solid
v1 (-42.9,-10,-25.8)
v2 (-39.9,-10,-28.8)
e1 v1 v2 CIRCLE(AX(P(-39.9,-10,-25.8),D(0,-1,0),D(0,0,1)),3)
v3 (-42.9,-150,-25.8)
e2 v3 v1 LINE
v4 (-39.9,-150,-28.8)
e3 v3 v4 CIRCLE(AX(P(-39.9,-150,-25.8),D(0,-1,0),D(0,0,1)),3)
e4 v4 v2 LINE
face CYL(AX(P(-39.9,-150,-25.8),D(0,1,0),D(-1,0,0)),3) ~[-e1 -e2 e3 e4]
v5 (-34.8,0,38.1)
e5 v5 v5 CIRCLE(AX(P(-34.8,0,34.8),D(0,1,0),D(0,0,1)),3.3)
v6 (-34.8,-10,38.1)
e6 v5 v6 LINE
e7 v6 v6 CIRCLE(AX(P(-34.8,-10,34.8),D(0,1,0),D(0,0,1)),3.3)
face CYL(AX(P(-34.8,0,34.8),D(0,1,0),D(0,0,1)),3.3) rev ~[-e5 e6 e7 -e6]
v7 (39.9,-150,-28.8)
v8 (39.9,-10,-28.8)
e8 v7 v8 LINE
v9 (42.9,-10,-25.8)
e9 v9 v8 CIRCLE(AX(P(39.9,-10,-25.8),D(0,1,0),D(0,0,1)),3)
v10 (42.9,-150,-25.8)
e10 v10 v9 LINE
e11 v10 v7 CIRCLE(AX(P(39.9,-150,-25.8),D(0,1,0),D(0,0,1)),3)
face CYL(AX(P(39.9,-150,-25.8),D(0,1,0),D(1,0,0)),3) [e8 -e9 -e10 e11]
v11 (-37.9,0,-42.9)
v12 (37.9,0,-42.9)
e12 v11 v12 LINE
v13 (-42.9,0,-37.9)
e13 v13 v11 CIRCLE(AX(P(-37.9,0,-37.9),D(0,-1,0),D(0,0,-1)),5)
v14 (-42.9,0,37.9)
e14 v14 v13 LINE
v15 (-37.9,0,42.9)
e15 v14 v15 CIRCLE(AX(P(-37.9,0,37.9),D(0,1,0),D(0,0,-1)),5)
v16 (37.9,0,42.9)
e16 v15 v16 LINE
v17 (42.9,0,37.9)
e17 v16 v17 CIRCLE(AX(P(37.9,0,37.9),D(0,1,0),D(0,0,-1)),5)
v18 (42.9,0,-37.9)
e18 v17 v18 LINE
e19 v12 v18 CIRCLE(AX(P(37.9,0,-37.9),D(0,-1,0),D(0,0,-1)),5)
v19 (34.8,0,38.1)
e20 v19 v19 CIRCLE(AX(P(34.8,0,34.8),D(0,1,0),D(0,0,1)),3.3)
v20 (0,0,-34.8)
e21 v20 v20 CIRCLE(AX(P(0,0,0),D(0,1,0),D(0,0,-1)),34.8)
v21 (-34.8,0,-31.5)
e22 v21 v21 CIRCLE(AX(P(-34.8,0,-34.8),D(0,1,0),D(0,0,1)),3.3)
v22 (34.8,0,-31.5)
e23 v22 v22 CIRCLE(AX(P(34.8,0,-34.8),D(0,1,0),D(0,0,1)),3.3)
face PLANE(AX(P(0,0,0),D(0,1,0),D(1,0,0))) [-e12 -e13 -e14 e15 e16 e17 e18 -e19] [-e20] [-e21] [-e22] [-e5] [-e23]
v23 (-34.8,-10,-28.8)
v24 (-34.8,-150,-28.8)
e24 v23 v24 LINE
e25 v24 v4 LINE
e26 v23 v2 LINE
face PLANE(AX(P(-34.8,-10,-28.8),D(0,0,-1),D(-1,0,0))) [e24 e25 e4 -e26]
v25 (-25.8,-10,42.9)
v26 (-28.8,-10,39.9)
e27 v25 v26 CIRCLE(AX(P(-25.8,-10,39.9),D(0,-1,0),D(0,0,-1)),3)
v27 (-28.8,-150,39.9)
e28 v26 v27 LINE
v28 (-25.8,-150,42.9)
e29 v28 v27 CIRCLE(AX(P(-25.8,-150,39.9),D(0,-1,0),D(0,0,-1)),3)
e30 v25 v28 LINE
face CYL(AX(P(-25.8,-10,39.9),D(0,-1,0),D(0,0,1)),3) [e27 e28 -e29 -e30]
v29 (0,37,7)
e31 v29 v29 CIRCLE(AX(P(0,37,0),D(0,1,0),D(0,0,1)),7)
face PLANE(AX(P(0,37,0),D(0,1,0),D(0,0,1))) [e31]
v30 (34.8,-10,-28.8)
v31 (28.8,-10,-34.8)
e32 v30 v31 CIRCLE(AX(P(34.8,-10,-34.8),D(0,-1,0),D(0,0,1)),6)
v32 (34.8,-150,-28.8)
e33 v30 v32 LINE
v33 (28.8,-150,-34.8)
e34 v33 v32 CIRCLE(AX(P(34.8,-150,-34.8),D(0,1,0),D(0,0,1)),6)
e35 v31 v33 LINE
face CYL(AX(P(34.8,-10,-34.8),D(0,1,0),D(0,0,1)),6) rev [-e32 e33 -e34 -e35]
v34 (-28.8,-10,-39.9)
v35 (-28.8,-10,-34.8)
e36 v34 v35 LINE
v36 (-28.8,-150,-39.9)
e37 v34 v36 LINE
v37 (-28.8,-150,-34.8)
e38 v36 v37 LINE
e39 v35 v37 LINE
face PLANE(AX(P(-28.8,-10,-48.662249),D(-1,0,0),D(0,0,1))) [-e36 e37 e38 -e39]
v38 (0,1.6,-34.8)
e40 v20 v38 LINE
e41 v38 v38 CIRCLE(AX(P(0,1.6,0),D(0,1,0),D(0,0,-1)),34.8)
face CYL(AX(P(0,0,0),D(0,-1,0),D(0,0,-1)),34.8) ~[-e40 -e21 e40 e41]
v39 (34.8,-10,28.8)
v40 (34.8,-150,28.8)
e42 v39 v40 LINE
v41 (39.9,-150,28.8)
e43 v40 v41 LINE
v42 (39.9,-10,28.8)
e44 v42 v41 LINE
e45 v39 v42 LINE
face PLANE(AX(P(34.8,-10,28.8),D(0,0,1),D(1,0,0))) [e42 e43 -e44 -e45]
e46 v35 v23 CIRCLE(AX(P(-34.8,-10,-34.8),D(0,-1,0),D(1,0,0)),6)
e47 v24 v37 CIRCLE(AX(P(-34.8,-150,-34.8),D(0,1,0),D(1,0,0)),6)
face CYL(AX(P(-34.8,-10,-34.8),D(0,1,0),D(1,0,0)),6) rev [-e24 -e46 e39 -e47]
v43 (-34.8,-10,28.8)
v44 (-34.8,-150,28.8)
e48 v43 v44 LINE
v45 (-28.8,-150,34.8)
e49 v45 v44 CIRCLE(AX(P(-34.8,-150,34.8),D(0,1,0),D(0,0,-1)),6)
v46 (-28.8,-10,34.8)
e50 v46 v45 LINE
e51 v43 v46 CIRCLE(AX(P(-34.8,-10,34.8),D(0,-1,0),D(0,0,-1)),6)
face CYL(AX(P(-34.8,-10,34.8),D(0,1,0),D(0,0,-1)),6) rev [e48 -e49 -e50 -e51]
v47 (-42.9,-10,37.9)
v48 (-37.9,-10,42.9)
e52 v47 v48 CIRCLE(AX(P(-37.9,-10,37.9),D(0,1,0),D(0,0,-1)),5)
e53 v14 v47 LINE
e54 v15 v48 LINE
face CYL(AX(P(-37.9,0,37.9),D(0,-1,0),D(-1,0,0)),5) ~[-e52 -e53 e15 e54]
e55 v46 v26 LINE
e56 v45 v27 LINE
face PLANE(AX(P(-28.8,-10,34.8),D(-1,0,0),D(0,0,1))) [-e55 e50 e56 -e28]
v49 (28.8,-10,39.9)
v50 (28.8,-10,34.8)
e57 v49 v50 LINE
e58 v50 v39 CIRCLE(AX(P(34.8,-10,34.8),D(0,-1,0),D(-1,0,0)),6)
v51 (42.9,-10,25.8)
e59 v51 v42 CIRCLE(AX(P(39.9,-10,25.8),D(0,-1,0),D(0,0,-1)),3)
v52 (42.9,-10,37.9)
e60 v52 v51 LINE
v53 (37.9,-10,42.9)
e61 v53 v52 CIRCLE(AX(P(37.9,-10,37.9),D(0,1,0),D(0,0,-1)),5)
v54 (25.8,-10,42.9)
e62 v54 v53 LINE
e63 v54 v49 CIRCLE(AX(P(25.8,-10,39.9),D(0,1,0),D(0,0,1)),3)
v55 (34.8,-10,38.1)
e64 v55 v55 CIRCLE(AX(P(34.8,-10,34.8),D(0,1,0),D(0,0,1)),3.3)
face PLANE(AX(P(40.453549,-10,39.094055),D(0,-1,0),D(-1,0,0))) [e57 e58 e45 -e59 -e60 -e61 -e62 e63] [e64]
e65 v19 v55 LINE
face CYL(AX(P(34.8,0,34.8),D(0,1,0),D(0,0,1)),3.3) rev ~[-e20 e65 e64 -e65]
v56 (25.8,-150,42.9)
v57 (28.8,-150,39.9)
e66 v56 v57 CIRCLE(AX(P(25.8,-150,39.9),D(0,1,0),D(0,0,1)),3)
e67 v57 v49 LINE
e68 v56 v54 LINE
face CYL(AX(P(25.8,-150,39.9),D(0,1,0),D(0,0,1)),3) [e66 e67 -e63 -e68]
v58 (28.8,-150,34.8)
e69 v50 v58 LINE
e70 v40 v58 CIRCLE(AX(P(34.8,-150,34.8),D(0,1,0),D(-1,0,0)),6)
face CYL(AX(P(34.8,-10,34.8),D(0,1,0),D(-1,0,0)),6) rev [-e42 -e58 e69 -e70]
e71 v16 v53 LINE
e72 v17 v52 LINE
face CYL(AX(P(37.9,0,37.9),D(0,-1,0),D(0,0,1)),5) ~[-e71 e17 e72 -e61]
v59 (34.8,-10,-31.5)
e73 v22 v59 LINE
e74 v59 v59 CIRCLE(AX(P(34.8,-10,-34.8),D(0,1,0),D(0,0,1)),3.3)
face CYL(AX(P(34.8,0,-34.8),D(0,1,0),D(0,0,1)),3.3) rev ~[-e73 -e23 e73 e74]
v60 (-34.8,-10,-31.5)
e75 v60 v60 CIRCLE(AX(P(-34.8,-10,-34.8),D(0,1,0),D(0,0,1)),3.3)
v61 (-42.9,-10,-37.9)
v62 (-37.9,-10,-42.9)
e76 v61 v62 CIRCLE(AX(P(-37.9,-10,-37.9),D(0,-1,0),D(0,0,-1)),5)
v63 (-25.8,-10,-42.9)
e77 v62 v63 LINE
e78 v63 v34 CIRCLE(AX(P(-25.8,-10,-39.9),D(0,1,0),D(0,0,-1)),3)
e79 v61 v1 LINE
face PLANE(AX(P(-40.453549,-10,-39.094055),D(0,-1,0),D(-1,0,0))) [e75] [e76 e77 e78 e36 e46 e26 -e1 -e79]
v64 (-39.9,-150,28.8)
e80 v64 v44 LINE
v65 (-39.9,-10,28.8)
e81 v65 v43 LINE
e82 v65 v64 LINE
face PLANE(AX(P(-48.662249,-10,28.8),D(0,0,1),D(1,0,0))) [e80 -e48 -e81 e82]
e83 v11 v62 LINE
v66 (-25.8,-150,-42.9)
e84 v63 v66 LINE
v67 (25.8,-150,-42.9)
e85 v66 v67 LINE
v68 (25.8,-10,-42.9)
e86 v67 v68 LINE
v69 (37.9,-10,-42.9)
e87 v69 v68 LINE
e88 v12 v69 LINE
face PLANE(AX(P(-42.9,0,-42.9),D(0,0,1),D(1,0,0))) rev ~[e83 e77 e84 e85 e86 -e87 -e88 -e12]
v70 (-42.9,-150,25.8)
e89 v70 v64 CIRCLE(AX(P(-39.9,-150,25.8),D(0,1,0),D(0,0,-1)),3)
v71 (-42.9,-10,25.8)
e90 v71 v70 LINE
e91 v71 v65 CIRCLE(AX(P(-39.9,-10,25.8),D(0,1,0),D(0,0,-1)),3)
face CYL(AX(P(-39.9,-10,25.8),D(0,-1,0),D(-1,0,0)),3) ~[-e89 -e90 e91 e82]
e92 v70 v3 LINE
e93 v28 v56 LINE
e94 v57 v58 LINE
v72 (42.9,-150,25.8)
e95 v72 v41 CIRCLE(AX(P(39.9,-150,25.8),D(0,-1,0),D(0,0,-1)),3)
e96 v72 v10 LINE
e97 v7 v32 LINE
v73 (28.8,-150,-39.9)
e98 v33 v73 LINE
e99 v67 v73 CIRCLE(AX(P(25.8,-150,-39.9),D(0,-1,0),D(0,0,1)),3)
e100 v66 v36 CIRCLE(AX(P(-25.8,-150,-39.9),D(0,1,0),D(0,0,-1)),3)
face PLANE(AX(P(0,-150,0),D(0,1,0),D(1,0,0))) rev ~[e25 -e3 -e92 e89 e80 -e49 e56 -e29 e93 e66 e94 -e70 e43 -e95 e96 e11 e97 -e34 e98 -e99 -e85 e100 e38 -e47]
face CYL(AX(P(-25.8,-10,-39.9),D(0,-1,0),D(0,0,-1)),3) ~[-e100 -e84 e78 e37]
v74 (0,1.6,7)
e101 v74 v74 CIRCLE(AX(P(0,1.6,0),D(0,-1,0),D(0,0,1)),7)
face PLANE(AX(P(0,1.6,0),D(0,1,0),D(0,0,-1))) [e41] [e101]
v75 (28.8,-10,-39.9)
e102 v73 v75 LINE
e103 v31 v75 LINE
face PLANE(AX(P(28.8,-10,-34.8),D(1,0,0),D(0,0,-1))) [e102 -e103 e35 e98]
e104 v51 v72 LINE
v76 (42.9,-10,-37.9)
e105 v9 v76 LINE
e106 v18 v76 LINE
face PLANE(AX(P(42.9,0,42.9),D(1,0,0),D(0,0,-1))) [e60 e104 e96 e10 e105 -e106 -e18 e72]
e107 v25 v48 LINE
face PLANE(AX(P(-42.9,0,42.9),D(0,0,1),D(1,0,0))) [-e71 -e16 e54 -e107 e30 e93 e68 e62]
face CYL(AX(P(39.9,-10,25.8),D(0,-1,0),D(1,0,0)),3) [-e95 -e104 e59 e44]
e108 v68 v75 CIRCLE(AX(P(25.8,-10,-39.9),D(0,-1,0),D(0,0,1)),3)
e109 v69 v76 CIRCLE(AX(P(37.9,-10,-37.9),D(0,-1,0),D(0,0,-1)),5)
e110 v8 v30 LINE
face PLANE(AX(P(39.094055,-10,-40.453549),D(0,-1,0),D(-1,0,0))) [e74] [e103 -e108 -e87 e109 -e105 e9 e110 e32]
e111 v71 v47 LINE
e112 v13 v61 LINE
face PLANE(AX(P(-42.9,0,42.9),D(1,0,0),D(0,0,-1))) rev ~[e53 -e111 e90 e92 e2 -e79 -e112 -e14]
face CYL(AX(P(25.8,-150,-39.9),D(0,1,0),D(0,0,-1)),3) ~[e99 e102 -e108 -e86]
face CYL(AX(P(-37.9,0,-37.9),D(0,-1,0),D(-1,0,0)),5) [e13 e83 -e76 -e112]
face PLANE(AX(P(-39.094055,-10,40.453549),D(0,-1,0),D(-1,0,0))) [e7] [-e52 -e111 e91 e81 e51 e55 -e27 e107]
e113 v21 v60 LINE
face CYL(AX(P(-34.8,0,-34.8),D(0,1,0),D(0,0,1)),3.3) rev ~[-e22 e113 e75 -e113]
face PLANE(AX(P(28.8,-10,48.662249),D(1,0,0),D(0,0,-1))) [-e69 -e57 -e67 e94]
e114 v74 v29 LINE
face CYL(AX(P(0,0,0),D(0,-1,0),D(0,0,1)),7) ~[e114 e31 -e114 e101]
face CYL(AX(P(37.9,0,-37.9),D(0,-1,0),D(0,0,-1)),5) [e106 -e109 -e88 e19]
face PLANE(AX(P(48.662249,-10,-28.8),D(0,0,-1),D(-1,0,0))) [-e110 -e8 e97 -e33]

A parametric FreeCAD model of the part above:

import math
import FreeCAD as App
import Part
import Sketcher

V = App.Vector
Q = App.Units.Quantity


def edges_at(feature, points):
    """Names of the edges that pass closest to the given points."""
    edges = feature.Shape.Edges
    near = lambda p: min(range(len(edges)), key=lambda i: edges[i].distToShape(Part.Vertex(*p))[0])
    return sorted({f"Edge{near(p) + 1}" for p in points})

doc = App.newDocument("Part")
body = doc.addObject("PartDesign::Body", "Body")

# Sketch on XZ plane
sketch1 = body.newObject("Sketcher::SketchObject", "Sketch")
sketch1.AttachmentSupport = (doc.getObject("XZ_Plane"), [""])
sketch1.MapMode = "FlatFace"
sketch1.addGeometry([
    Part.LineSegment(V(-42.9, -42.9, 0), V(-42.9, 42.9, 0)),  # 0
    Part.LineSegment(V(-42.9, 42.9, 0), V(42.9, 42.9, 0)),  # 1
    Part.LineSegment(V(42.9, 42.9, 0), V(42.9, -42.9, 0)),  # 2
    Part.LineSegment(V(42.9, -42.9, 0), V(-42.9, -42.9, 0)),  # 3
    Part.Circle(V(-34.8, 34.8, 0), V(0, 0, 1), 3.3),  # 4
    Part.Circle(V(34.8, 34.8, 0), V(0, 0, 1), 3.3),  # 5
    Part.Circle(V(-34.8, -34.8, 0), V(0, 0, 1), 3.3),  # 6
    Part.Circle(V(34.8, -34.8, 0), V(0, 0, 1), 3.3),  # 7
], False)
sketch1.addConstraint([
    Sketcher.Constraint("Coincident", 0, 2, 1, 1),
    Sketcher.Constraint("Coincident", 1, 2, 2, 1),
    Sketcher.Constraint("Coincident", 2, 2, 3, 1),
    Sketcher.Constraint("Coincident", 3, 2, 0, 1),
    Sketcher.Constraint("Vertical", 0),
    Sketcher.Constraint("Horizontal", 1),
    Sketcher.Constraint("Vertical", 2),
    Sketcher.Constraint("Horizontal", 3),
    Sketcher.Constraint("Equal", 4, 5),
    Sketcher.Constraint("Equal", 5, 6),
    Sketcher.Constraint("Equal", 6, 7),
    Sketcher.Constraint("Symmetric", 5, 3, 6, 3, -1, 1),
    Sketcher.Constraint("Symmetric", 4, 3, 7, 3, -1, 1),
    Sketcher.Constraint("Symmetric", 0, 2, 2, 2, -1, 1),
    Sketcher.Constraint("Symmetric", 4, 3, 5, 3, -2),
    Sketcher.Constraint("Equal", 3, 0),
    Sketcher.Constraint("Diameter", 4, Q("6.6 mm")),
    Sketcher.Constraint("DistanceX", 1, 1, 1, 2, Q("85.8 mm")),
    Sketcher.Constraint("DistanceX", 4, 3, -1, 1, Q("34.8 mm")),
    Sketcher.Constraint("DistanceY", -1, 1, 4, 3, Q("34.8 mm")),
])
pad1 = body.newObject("PartDesign::Pad", "Pad")
pad1.Profile = sketch1
pad1.Length = 150

# Sketch on XZ plane
sketch2 = body.newObject("Sketcher::SketchObject", "Sketch001")
sketch2.AttachmentSupport = (doc.getObject("XZ_Plane"), [""])
sketch2.MapMode = "FlatFace"
sketch2.addGeometry(Part.Circle(V(0, 0, 0), V(0, 0, 1), 34.8), False)
sketch2.addConstraint([
    Sketcher.Constraint("Coincident", 0, 3, -1, 1),
    Sketcher.Constraint("Diameter", 0, Q("69.6 mm")),
])
pad2 = body.newObject("PartDesign::Pad", "Pad001")
pad2.Profile = sketch2
pad2.Length = 1.6
pad2.Reversed = True

# Sketch on XZ plane
sketch3 = body.newObject("Sketcher::SketchObject", "Sketch002")
sketch3.AttachmentSupport = (doc.getObject("XZ_Plane"), [""])
sketch3.MapMode = "FlatFace"
sketch3.addGeometry(Part.Circle(V(0, 0, 0), V(0, 0, 1), 7), False)
sketch3.addConstraint([
    Sketcher.Constraint("Coincident", 0, 3, -1, 1),
    Sketcher.Constraint("Diameter", 0, Q("14 mm")),
])
pad3 = body.newObject("PartDesign::Pad", "Pad002")
pad3.Profile = sketch3
pad3.Length = 37
pad3.Reversed = True

# Sketch on XZ plane
sketch4 = body.newObject("Sketcher::SketchObject", "Sketch003")
sketch4.AttachmentSupport = (doc.getObject("XZ_Plane"), [""])
sketch4.MapMode = "FlatFace"
sketch4.AttachmentOffset = App.Placement(V(0, 0, 10), App.Rotation())
sketch4.addGeometry([
    Part.LineSegment(V(-51.29514, -28.8, 0), V(-34.8, -28.8, 0)),  # 0
    Part.ArcOfCircle(Part.Circle(V(-34.8, -34.8, 0), V(0, 0, 1), 6), math.radians(0), math.radians(90)),  # 1
    Part.LineSegment(V(-28.8, -34.8, 0), V(-28.8, -48.662249, 0)),  # 2
    Part.LineSegment(V(-28.8, -48.662249, 0), V(-51.29514, -48.662249, 0)),  # 3
    Part.LineSegment(V(-51.29514, -48.662249, 0), V(-51.29514, -28.8, 0)),  # 4
    Part.LineSegment(V(34.8, -28.8, 0), V(48.662249, -28.8, 0)),  # 5
    Part.LineSegment(V(48.662249, -28.8, 0), V(48.662249, -51.29514, 0)),  # 6
    Part.LineSegment(V(48.662249, -51.29514, 0), V(28.8, -51.29514, 0)),  # 7
    Part.LineSegment(V(28.8, -51.29514, 0), V(28.8, -34.8, 0)),  # 8
    Part.ArcOfCircle(Part.Circle(V(34.8, -34.8, 0), V(0, 0, 1), 6), math.radians(90), math.radians(180)),  # 9
    Part.LineSegment(V(28.8, 34.8, 0), V(28.8, 48.662249, 0)),  # 10
    Part.LineSegment(V(28.8, 48.662249, 0), V(51.29514, 48.662249, 0)),  # 11
    Part.LineSegment(V(51.29514, 48.662249, 0), V(51.29514, 28.8, 0)),  # 12
    Part.LineSegment(V(51.29514, 28.8, 0), V(34.8, 28.8, 0)),  # 13
    Part.ArcOfCircle(Part.Circle(V(34.8, 34.8, 0), V(0, 0, 1), 6), math.radians(180), math.radians(270)),  # 14
    Part.LineSegment(V(-34.8, 28.8, 0), V(-48.662249, 28.8, 0)),  # 15
    Part.LineSegment(V(-48.662249, 28.8, 0), V(-48.662249, 51.29514, 0)),  # 16
    Part.LineSegment(V(-48.662249, 51.29514, 0), V(-28.8, 51.29514, 0)),  # 17
    Part.LineSegment(V(-28.8, 51.29514, 0), V(-28.8, 34.8, 0)),  # 18
    Part.ArcOfCircle(Part.Circle(V(-34.8, 34.8, 0), V(0, 0, 1), 6), math.radians(-90), math.radians(0)),  # 19
], False)
sketch4.addConstraint([
    Sketcher.Constraint("Tangent", 0, 2, 1, 2),
    Sketcher.Constraint("Tangent", 1, 1, 2, 1),
    Sketcher.Constraint("Coincident", 2, 2, 3, 1),
    Sketcher.Constraint("Coincident", 3, 2, 4, 1),
    Sketcher.Constraint("Coincident", 4, 2, 0, 1),
    Sketcher.Constraint("Coincident", 5, 2, 6, 1),
    Sketcher.Constraint("Coincident", 6, 2, 7, 1),
    Sketcher.Constraint("Coincident", 7, 2, 8, 1),
    Sketcher.Constraint("Tangent", 8, 2, 9, 2),
    Sketcher.Constraint("Tangent", 9, 1, 5, 1),
    Sketcher.Constraint("Coincident", 10, 2, 11, 1),
    Sketcher.Constraint("Coincident", 11, 2, 12, 1),
    Sketcher.Constraint("Coincident", 12, 2, 13, 1),
    Sketcher.Constraint("Tangent", 13, 2, 14, 2),
    Sketcher.Constraint("Tangent", 14, 1, 10, 1),
    Sketcher.Constraint("Coincident", 15, 2, 16, 1),
    Sketcher.Constraint("Coincident", 16, 2, 17, 1),
    Sketcher.Constraint("Coincident", 17, 2, 18, 1),
    Sketcher.Constraint("Tangent", 18, 2, 19, 2),
    Sketcher.Constraint("Tangent", 19, 1, 15, 1),
    Sketcher.Constraint("Horizontal", 0),
    Sketcher.Constraint("Vertical", 2),
    Sketcher.Constraint("Horizontal", 3),
    Sketcher.Constraint("Vertical", 4),
    Sketcher.Constraint("Horizontal", 5),
    Sketcher.Constraint("Vertical", 6),
    Sketcher.Constraint("Horizontal", 7),
    Sketcher.Constraint("Vertical", 8),
    Sketcher.Constraint("Vertical", 10),
    Sketcher.Constraint("Horizontal", 11),
    Sketcher.Constraint("Vertical", 12),
    Sketcher.Constraint("Horizontal", 13),
    Sketcher.Constraint("Horizontal", 15),
    Sketcher.Constraint("Vertical", 16),
    Sketcher.Constraint("Horizontal", 17),
    Sketcher.Constraint("Vertical", 18),
    Sketcher.Constraint("Equal", 1, 9),
    Sketcher.Constraint("Equal", 9, 14),
    Sketcher.Constraint("Equal", 14, 19),
    Sketcher.Constraint("Symmetric", 1, 3, 14, 3, -1, 1),
    Sketcher.Constraint("Symmetric", 9, 3, 19, 3, -1, 1),
    Sketcher.Constraint("Symmetric", 3, 2, 11, 2, -1, 1),
    Sketcher.Constraint("Symmetric", 6, 2, 16, 2, -1, 1),
    Sketcher.Constraint("Symmetric", 1, 3, 9, 3, -2),
    Sketcher.Constraint("Equal", 15, 2),
    Sketcher.Constraint("Equal", 11, 6),
    Sketcher.Constraint("Radius", 1, Q("6 mm")),
    Sketcher.Constraint("DistanceX", 1, 3, -1, 1, Q("34.8 mm")),
    Sketcher.Constraint("DistanceY", 1, 3, -1, 1, Q("34.8 mm")),
    Sketcher.Constraint("DistanceX", 0, 1, 0, 2, Q("16.49514 mm")),
    Sketcher.Constraint("DistanceX", 5, 1, 5, 2, Q("13.862249 mm")),
])
pocket1 = body.newObject("PartDesign::Pocket", "Pocket")
pocket1.Profile = sketch4
pocket1.Length = 157
pocket1.Reversed = True
doc.recompute()

fillet = body.newObject("PartDesign::Fillet", "Fillet")
fillet.Base = (pocket1, edges_at(pocket1, [
    (42.9, -5, -42.9),
    (-42.9, -5, -42.9),
    (-42.9, -5, 42.9),
    (42.9, -5, 42.9),
]))
fillet.Radius = 5
doc.recompute()

fillet2 = body.newObject("PartDesign::Fillet", "Fillet001")
fillet2.Base = (fillet, edges_at(fillet, [
    (-28.8, -80, 42.9),
    (-42.9, -80, 28.8),
    (42.9, -80, 28.8),
    (28.8, -80, 42.9),
    (28.8, -80, -42.9),
    (42.9, -80, -28.8),
    (-42.9, -80, -28.8),
    (-28.8, -80, -42.9),
]))
fillet2.Radius = 3

doc.recompute()
